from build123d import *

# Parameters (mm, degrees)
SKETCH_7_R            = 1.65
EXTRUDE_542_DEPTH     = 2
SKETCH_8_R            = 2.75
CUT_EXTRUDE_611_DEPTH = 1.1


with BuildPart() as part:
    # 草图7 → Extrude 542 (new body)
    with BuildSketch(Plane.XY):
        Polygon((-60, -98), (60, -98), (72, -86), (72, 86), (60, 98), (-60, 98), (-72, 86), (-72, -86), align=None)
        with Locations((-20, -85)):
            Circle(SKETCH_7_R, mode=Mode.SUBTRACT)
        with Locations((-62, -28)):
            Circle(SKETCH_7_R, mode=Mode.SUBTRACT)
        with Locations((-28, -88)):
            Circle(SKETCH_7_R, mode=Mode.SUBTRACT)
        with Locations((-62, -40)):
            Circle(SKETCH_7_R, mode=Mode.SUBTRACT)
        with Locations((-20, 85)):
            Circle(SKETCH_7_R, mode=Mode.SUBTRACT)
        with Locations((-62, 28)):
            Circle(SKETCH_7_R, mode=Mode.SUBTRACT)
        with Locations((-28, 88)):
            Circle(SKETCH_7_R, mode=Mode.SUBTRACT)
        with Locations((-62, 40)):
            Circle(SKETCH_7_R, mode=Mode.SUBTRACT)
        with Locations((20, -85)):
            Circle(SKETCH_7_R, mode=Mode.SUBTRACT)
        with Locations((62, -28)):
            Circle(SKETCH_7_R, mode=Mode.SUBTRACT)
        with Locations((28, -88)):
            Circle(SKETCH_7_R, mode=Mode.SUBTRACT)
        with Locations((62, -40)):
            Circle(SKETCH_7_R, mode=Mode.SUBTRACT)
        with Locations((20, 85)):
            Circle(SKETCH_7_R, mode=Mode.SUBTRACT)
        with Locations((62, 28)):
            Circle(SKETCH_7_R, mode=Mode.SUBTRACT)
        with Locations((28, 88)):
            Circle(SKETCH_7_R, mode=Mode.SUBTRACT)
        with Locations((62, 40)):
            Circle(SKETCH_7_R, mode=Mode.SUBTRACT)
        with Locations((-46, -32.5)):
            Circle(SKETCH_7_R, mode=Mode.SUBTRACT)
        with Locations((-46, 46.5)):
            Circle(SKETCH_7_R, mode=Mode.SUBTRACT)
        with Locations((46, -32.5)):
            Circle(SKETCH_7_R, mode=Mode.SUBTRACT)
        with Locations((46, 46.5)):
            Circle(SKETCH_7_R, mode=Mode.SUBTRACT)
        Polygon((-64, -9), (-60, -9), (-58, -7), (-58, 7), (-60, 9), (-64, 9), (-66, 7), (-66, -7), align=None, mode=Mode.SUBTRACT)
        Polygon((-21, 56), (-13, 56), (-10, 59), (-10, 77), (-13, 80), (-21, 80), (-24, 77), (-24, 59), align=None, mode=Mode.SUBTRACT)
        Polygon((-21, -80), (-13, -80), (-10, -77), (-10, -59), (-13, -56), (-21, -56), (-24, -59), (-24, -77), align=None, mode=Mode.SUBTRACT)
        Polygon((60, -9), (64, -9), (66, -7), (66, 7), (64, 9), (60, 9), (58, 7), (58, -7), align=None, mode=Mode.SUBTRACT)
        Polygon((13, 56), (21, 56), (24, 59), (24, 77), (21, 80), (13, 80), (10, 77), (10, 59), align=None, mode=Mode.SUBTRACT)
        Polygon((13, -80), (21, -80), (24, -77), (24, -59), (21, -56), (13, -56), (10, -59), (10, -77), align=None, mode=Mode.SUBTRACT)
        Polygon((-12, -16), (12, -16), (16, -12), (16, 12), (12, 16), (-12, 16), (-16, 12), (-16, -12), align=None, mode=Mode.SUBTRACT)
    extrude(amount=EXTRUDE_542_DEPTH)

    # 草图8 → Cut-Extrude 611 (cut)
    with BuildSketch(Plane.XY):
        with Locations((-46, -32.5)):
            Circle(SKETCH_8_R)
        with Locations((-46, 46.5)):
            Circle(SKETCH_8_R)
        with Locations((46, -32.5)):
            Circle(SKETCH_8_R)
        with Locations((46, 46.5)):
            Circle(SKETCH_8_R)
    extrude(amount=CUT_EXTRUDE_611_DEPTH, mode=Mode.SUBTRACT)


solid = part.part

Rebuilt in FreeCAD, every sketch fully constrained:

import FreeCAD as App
import Part
import Sketcher

V = App.Vector


def add_polygon(sketch, points):
    """Adds a closed chain of lines whose ends are joined by coincident constraints."""
    first, n = sketch.GeometryCount, len(points)
    for a, b in zip(points, points[1:] + points[:1]):
        sketch.addGeometry(Part.LineSegment(App.Vector(*a, 0), App.Vector(*b, 0)), False)
    for i in range(n):
        sketch.addConstraint(Sketcher.Constraint("Coincident", first + i, 2, first + (i + 1) % n, 1))

doc = App.newDocument("Part")
params = doc.addObject("Spreadsheet::Sheet", "Params")
for row, (alias, value) in enumerate([
    ("sketch1_diameter", "3.3 mm"),
    ("sketch1_width", "120 mm"),
    ("sketch1_width2", "8 mm"),
    ("sketch1_width3", "4 mm"),
    ("sketch1_width4", "24 mm"),
    ("pad1_length", "2 mm"),
    ("sketch2_diameter", "5.5 mm"),
    ("pocket1_length", "1.1 mm"),
], start=1):
    params.set(f"A{row}", alias)
    params.set(f"B{row}", "=" + value)
    params.setAlias(f"B{row}", alias)

body = doc.addObject("PartDesign::Body", "Body")

# Sketch on XY plane
sketch1 = doc.addObject("Sketcher::SketchObject", "Sketch")
body.addObject(sketch1)
sketch1.AttachmentSupport = (doc.XY_Plane, [""])
sketch1.MapMode = "FlatFace"
add_polygon(sketch1, [(-60, -98), (60, -98), (72, -86), (72, 86), (60, 98), (-60, 98), (-72, 86), (-72, -86)])  # lines 0-7
sketch1.addGeometry(Part.Circle(V(-28, -88, 0), V(0, 0, 1), 1.65), False)  # 8
sketch1.addGeometry(Part.Circle(V(-20, -85, 0), V(0, 0, 1), 1.65), False)  # 9
add_polygon(sketch1, [(-13, -80), (-21, -80), (-24, -77), (-24, -59), (-21, -56), (-13, -56), (-10, -59), (-10, -77)])  # lines 10-17
sketch1.addGeometry(Part.Circle(V(-62, -40, 0), V(0, 0, 1), 1.65), False)  # 18
sketch1.addGeometry(Part.Circle(V(-62, -28, 0), V(0, 0, 1), 1.65), False)  # 19
sketch1.addGeometry(Part.Circle(V(-46, -32.5, 0), V(0, 0, 1), 1.65), False)  # 20
sketch1.addGeometry(Part.Circle(V(20, -85, 0), V(0, 0, 1), 1.65), False)  # 21
sketch1.addGeometry(Part.Circle(V(28, -88, 0), V(0, 0, 1), 1.65), False)  # 22
add_polygon(sketch1, [(21, -80), (13, -80), (10, -77), (10, -59), (13, -56), (21, -56), (24, -59), (24, -77)])  # lines 23-30
sketch1.addGeometry(Part.Circle(V(46, -32.5, 0), V(0, 0, 1), 1.65), False)  # 31
sketch1.addGeometry(Part.Circle(V(62, -40, 0), V(0, 0, 1), 1.65), False)  # 32
sketch1.addGeometry(Part.Circle(V(62, -28, 0), V(0, 0, 1), 1.65), False)  # 33
add_polygon(sketch1, [(-60, -9), (-64, -9), (-66, -7), (-66, 7), (-64, 9), (-60, 9), (-58, 7), (-58, -7)])  # lines 34-41
sketch1.addGeometry(Part.Circle(V(-62, 28, 0), V(0, 0, 1), 1.65), False)  # 42
sketch1.addGeometry(Part.Circle(V(-62, 40, 0), V(0, 0, 1), 1.65), False)  # 43
sketch1.addGeometry(Part.Circle(V(-46, 46.5, 0), V(0, 0, 1), 1.65), False)  # 44
add_polygon(sketch1, [(-13, 56), (-21, 56), (-24, 59), (-24, 77), (-21, 80), (-13, 80), (-10, 77), (-10, 59)])  # lines 45-52
sketch1.addGeometry(Part.Circle(V(-28, 88, 0), V(0, 0, 1), 1.65), False)  # 53
sketch1.addGeometry(Part.Circle(V(-20, 85, 0), V(0, 0, 1), 1.65), False)  # 54
add_polygon(sketch1, [(12, -16), (-12, -16), (-16, -12), (-16, 12), (-12, 16), (12, 16), (16, 12), (16, -12)])  # lines 55-62
add_polygon(sketch1, [(64, -9), (60, -9), (58, -7), (58, 7), (60, 9), (64, 9), (66, 7), (66, -7)])  # lines 63-70
sketch1.addGeometry(Part.Circle(V(62, 28, 0), V(0, 0, 1), 1.65), False)  # 71
sketch1.addGeometry(Part.Circle(V(62, 40, 0), V(0, 0, 1), 1.65), False)  # 72
add_polygon(sketch1, [(21, 56), (13, 56), (10, 59), (10, 77), (13, 80), (21, 80), (24, 77), (24, 59)])  # lines 73-80
sketch1.addGeometry(Part.Circle(V(20, 85, 0), V(0, 0, 1), 1.65), False)  # 81
sketch1.addGeometry(Part.Circle(V(28, 88, 0), V(0, 0, 1), 1.65), False)  # 82
sketch1.addGeometry(Part.Circle(V(46, 46.5, 0), V(0, 0, 1), 1.65), False)  # 83
sketch1.addConstraint(Sketcher.Constraint("Horizontal", 0))
sketch1.addConstraint(Sketcher.Constraint("Vertical", 2))
sketch1.addConstraint(Sketcher.Constraint("Horizontal", 4))
sketch1.addConstraint(Sketcher.Constraint("Vertical", 6))
sketch1.addConstraint(Sketcher.Constraint("Horizontal", 10))
sketch1.addConstraint(Sketcher.Constraint("Vertical", 12))
sketch1.addConstraint(Sketcher.Constraint("Horizontal", 14))
sketch1.addConstraint(Sketcher.Constraint("Vertical", 16))
sketch1.addConstraint(Sketcher.Constraint("Horizontal", 23))
sketch1.addConstraint(Sketcher.Constraint("Vertical", 25))
sketch1.addConstraint(Sketcher.Constraint("Horizontal", 27))
sketch1.addConstraint(Sketcher.Constraint("Vertical", 29))
sketch1.addConstraint(Sketcher.Constraint("Horizontal", 34))
sketch1.addConstraint(Sketcher.Constraint("Vertical", 36))
sketch1.addConstraint(Sketcher.Constraint("Horizontal", 38))
sketch1.addConstraint(Sketcher.Constraint("Vertical", 40))
sketch1.addConstraint(Sketcher.Constraint("Horizontal", 45))
sketch1.addConstraint(Sketcher.Constraint("Vertical", 47))
sketch1.addConstraint(Sketcher.Constraint("Horizontal", 49))
sketch1.addConstraint(Sketcher.Constraint("Vertical", 51))
sketch1.addConstraint(Sketcher.Constraint("Horizontal", 55))
sketch1.addConstraint(Sketcher.Constraint("Vertical", 57))
sketch1.addConstraint(Sketcher.Constraint("Horizontal", 59))
sketch1.addConstraint(Sketcher.Constraint("Vertical", 61))
sketch1.addConstraint(Sketcher.Constraint("Horizontal", 63))
sketch1.addConstraint(Sketcher.Constraint("Vertical", 65))
sketch1.addConstraint(Sketcher.Constraint("Horizontal", 67))
sketch1.addConstraint(Sketcher.Constraint("Vertical", 69))
sketch1.addConstraint(Sketcher.Constraint("Horizontal", 73))
sketch1.addConstraint(Sketcher.Constraint("Vertical", 75))
sketch1.addConstraint(Sketcher.Constraint("Horizontal", 77))
sketch1.addConstraint(Sketcher.Constraint("Vertical", 79))
sketch1.addConstraint(Sketcher.Constraint("Equal", 8, 9))
sketch1.addConstraint(Sketcher.Constraint("Equal", 9, 18))
sketch1.addConstraint(Sketcher.Constraint("Equal", 18, 19))
sketch1.addConstraint(Sketcher.Constraint("Equal", 19, 20))
sketch1.addConstraint(Sketcher.Constraint("Equal", 20, 21))
sketch1.addConstraint(Sketcher.Constraint("Equal", 21, 22))
sketch1.addConstraint(Sketcher.Constraint("Equal", 22, 31))
sketch1.addConstraint(Sketcher.Constraint("Equal", 31, 32))
sketch1.addConstraint(Sketcher.Constraint("Equal", 32, 33))
sketch1.addConstraint(Sketcher.Constraint("Equal", 33, 42))
sketch1.addConstraint(Sketcher.Constraint("Equal", 42, 43))
sketch1.addConstraint(Sketcher.Constraint("Equal", 43, 44))
sketch1.addConstraint(Sketcher.Constraint("Equal", 44, 53))
sketch1.addConstraint(Sketcher.Constraint("Equal", 53, 54))
sketch1.addConstraint(Sketcher.Constraint("Equal", 54, 71))
sketch1.addConstraint(Sketcher.Constraint("Equal", 71, 72))
sketch1.addConstraint(Sketcher.Constraint("Equal", 72, 81))
sketch1.addConstraint(Sketcher.Constraint("Equal", 81, 82))
sketch1.addConstraint(Sketcher.Constraint("Equal", 82, 83))
sketch1.addConstraint(Sketcher.Constraint("Symmetric", 33, 3, 42, 3, -1, 1))
sketch1.addConstraint(Sketcher.Constraint("Symmetric", 32, 3, 43, 3, -1, 1))
sketch1.addConstraint(Sketcher.Constraint("Symmetric", 22, 3, 53, 3, -1, 1))
sketch1.addConstraint(Sketcher.Constraint("Symmetric", 21, 3, 54, 3, -1, 1))
sketch1.addConstraint(Sketcher.Constraint("Symmetric", 19, 3, 71, 3, -1, 1))
sketch1.addConstraint(Sketcher.Constraint("Symmetric", 18, 3, 72, 3, -1, 1))
sketch1.addConstraint(Sketcher.Constraint("Symmetric", 9, 3, 81, 3, -1, 1))
sketch1.addConstraint(Sketcher.Constraint("Symmetric", 8, 3, 82, 3, -1, 1))
sketch1.addConstraint(Sketcher.Constraint("Symmetric", 0, 2, 4, 2, -1, 1))
sketch1.addConstraint(Sketcher.Constraint("Symmetric", 1, 2, 5, 2, -1, 1))
sketch1.addConstraint(Sketcher.Constraint("Symmetric", 27, 2, 45, 2, -1, 1))
sketch1.addConstraint(Sketcher.Constraint("Symmetric", 28, 2, 46, 2, -1, 1))
sketch1.addConstraint(Sketcher.Constraint("Symmetric", 30, 2, 48, 2, -1, 1))
sketch1.addConstraint(Sketcher.Constraint("Symmetric", 24, 2, 50, 2, -1, 1))
sketch1.addConstraint(Sketcher.Constraint("Symmetric", 55, 2, 59, 2, -1, 1))
sketch1.addConstraint(Sketcher.Constraint("Symmetric", 56, 2, 60, 2, -1, 1))
sketch1.addConstraint(Sketcher.Constraint("Symmetric", 38, 2, 63, 2, -1, 1))
sketch1.addConstraint(Sketcher.Constraint("Symmetric", 39, 2, 64, 2, -1, 1))
sketch1.addConstraint(Sketcher.Constraint("Symmetric", 41, 2, 66, 2, -1, 1))
sketch1.addConstraint(Sketcher.Constraint("Symmetric", 35, 2, 68, 2, -1, 1))
sketch1.addConstraint(Sketcher.Constraint("Symmetric", 14, 2, 73, 2, -1, 1))
sketch1.addConstraint(Sketcher.Constraint("Symmetric", 15, 2, 74, 2, -1, 1))
sketch1.addConstraint(Sketcher.Constraint("Symmetric", 17, 2, 76, 2, -1, 1))
sketch1.addConstraint(Sketcher.Constraint("Symmetric", 11, 2, 78, 2, -1, 1))
sketch1.addConstraint(Sketcher.Constraint("Symmetric", 9, 3, 21, 3, -2))
sketch1.addConstraint(Sketcher.Constraint("Symmetric", 8, 3, 22, 3, -2))
sketch1.addConstraint(Sketcher.Constraint("Symmetric", 20, 3, 31, 3, -2))
sketch1.addConstraint(Sketcher.Constraint("Symmetric", 18, 3, 32, 3, -2))
sketch1.addConstraint(Sketcher.Constraint("Symmetric", 19, 3, 33, 3, -2))
sketch1.addConstraint(Sketcher.Constraint("Symmetric", 44, 3, 83, 3, -2))
sketch1.addConstraint(Sketcher.Constraint("Symmetric", 17, 2, 23, 2, -2))
sketch1.addConstraint(Sketcher.Constraint("Symmetric", 16, 2, 24, 2, -2))
sketch1.addConstraint(Sketcher.Constraint("Symmetric", 14, 2, 26, 2, -2))
sketch1.addConstraint(Sketcher.Constraint("Symmetric", 12, 2, 28, 2, -2))
sketch1.addConstraint(Sketcher.Constraint("Symmetric", 41, 2, 63, 2, -2))
sketch1.addConstraint(Sketcher.Constraint("Perpendicular", 1, 3))
sketch1.addConstraint(Sketcher.Constraint("Perpendicular", 5, 7))
sketch1.addConstraint(Sketcher.Constraint("Parallel", 7, 11))
sketch1.addConstraint(Sketcher.Constraint("Perpendicular", 11, 13))
sketch1.addConstraint(Sketcher.Constraint("Perpendicular", 13, 15))
sketch1.addConstraint(Sketcher.Constraint("Perpendicular", 15, 17))
sketch1.addConstraint(Sketcher.Constraint("Perpendicular", 17, 24))
sketch1.addConstraint(Sketcher.Constraint("Perpendicular", 24, 26))
sketch1.addConstraint(Sketcher.Constraint("Perpendicular", 26, 28))
sketch1.addConstraint(Sketcher.Constraint("Perpendicular", 28, 30))
sketch1.addConstraint(Sketcher.Constraint("Perpendicular", 30, 35))
sketch1.addConstraint(Sketcher.Constraint("Perpendicular", 35, 37))
sketch1.addConstraint(Sketcher.Constraint("Perpendicular", 37, 39))
sketch1.addConstraint(Sketcher.Constraint("Perpendicular", 39, 41))
sketch1.addConstraint(Sketcher.Constraint("Perpendicular", 46, 48))
sketch1.addConstraint(Sketcher.Constraint("Perpendicular", 48, 50))
sketch1.addConstraint(Sketcher.Constraint("Perpendicular", 50, 52))
sketch1.addConstraint(Sketcher.Constraint("Perpendicular", 52, 56))
sketch1.addConstraint(Sketcher.Constraint("Perpendicular", 56, 58))
sketch1.addConstraint(Sketcher.Constraint("Perpendicular", 60, 62))
sketch1.addConstraint(Sketcher.Constraint("Perpendicular", 64, 66))
sketch1.addConstraint(Sketcher.Constraint("Perpendicular", 66, 68))
sketch1.addConstraint(Sketcher.Constraint("Perpendicular", 68, 70))
sketch1.addConstraint(Sketcher.Constraint("Perpendicular", 74, 76))
sketch1.addConstraint(Sketcher.Constraint("Perpendicular", 76, 78))
sketch1.addConstraint(Sketcher.Constraint("Perpendicular", 78, 80))
sketch1.addConstraint(Sketcher.Constraint("Horizontal", 2, 2, 5, 2))
sketch1.addConstraint(Sketcher.Constraint("Horizontal", 1, 2, 6, 2))
sketch1.addConstraint(Sketcher.Constraint("Horizontal", 12, 2, 15, 2))
sketch1.addConstraint(Sketcher.Constraint("Horizontal", 11, 2, 16, 2))
sketch1.addConstraint(Sketcher.Constraint("Horizontal", 24, 2, 29, 2))
sketch1.addConstraint(Sketcher.Constraint("Horizontal", 36, 2, 39, 2))
sketch1.addConstraint(Sketcher.Constraint("Horizontal", 35, 2, 40, 2))
sketch1.addConstraint(Sketcher.Constraint("Horizontal", 46, 2, 51, 2))
sketch1.addConstraint(Sketcher.Constraint("Horizontal", 57, 2, 60, 2))
sketch1.addConstraint(Sketcher.Constraint("Horizontal", 56, 2, 61, 2))
sketch1.addConstraint(Sketcher.Constraint("Horizontal", 64, 2, 69, 2))
sketch1.addConstraint(Sketcher.Constraint("Horizontal", 74, 2, 79, 2))
sketch1.addConstraint(Sketcher.Constraint("Vertical", 18, 3, 19, 3))
sketch1.addConstraint(Sketcher.Constraint("Vertical", 20, 3, 44, 3))
sketch1.addConstraint(Sketcher.Constraint("Vertical", 10, 2, 13, 2))
sketch1.addConstraint(Sketcher.Constraint("Vertical", 7, 2, 38, 2))
sketch1.addConstraint(Sketcher.Constraint("Equal", 59, 57))
sketch1.addConstraint(Sketcher.Constraint("Diameter", 8, 3.3))
sketch1.addConstraint(Sketcher.Constraint("DistanceX", 0, 1, 0, 2, 120.0))
sketch1.addConstraint(Sketcher.Constraint("DistanceX", 10, 2, 10, 1, 8.0))
sketch1.addConstraint(Sketcher.Constraint("DistanceX", 34, 2, 34, 1, 4.0))
sketch1.addConstraint(Sketcher.Constraint("DistanceX", 55, 2, 55, 1, 24.0))
sketch1.addConstraint(Sketcher.Constraint("DistanceY", 2, 1, 2, 2, 172.0))
sketch1.addConstraint(Sketcher.Constraint("DistanceY", 12, 1, 12, 2, 18.0))
sketch1.addConstraint(Sketcher.Constraint("DistanceY", 36, 1, 36, 2, 14.0))
sketch1.addConstraint(Sketcher.Constraint("DistanceX", 8, 3, -1, 1, 28.0))
sketch1.addConstraint(Sketcher.Constraint("DistanceY", 8, 3, -1, 1, 88.0))
sketch1.addConstraint(Sketcher.Constraint("DistanceX", 9, 3, -1, 1, 20.0))
sketch1.addConstraint(Sketcher.Constraint("DistanceY", 9, 3, -1, 1, 85.0))
sketch1.addConstraint(Sketcher.Constraint("DistanceX", 18, 3, -1, 1, 62.0))
sketch1.addConstraint(Sketcher.Constraint("DistanceY", 18, 3, -1, 1, 40.0))
sketch1.addConstraint(Sketcher.Constraint("DistanceY", 19, 3, -1, 1, 28.0))
sketch1.addConstraint(Sketcher.Constraint("DistanceX", 20, 3, -1, 1, 46.0))
sketch1.addConstraint(Sketcher.Constraint("DistanceY", 0, 2, -1, 1, 98.0))
sketch1.addConstraint(Sketcher.Constraint("DistanceX", 10, 2, -1, 1, 21.0))
sketch1.addConstraint(Sketcher.Constraint("DistanceY", 10, 2, -1, 1, 80.0))
sketch1.addConstraint(Sketcher.Constraint("DistanceX", 11, 2, -1, 1, 24.0))
sketch1.addConstraint(Sketcher.Constraint("DistanceY", 34, 2, -1, 1, 9.0))
sketch1.addConstraint(Sketcher.Constraint("DistanceY", 55, 2, -1, 1, 16.0))
sketch1.addConstraint(Sketcher.Constraint("DistanceY", 20, 3, -1, 1, 32.5))
sketch1.addConstraint(Sketcher.Constraint("DistanceY", -1, 1, 44, 3, 46.5))
sketch1.setExpression("Constraints[193]", "Params.sketch1_diameter")
sketch1.setExpression("Constraints[194]", "Params.sketch1_width")
sketch1.setExpression("Constraints[195]", "Params.sketch1_width2")
sketch1.setExpression("Constraints[196]", "Params.sketch1_width3")
sketch1.setExpression("Constraints[197]", "Params.sketch1_width4")
pad1 = doc.addObject("PartDesign::Pad", "Pad")
body.addObject(pad1)
pad1.Profile = sketch1
pad1.setExpression("Length", "Params.pad1_length")

# Sketch on XY plane
sketch2 = doc.addObject("Sketcher::SketchObject", "Sketch001")
body.addObject(sketch2)
sketch2.AttachmentSupport = (doc.XY_Plane, [""])
sketch2.MapMode = "FlatFace"
sketch2.addGeometry(Part.Circle(V(-46, -32.5, 0), V(0, 0, 1), 2.75), False)
sketch2.addGeometry(Part.Circle(V(-46, 46.5, 0), V(0, 0, 1), 2.75), False)
sketch2.addGeometry(Part.Circle(V(46, -32.5, 0), V(0, 0, 1), 2.75), False)
sketch2.addGeometry(Part.Circle(V(46, 46.5, 0), V(0, 0, 1), 2.75), False)
sketch2.addConstraint(Sketcher.Constraint("Equal", 0, 1))
sketch2.addConstraint(Sketcher.Constraint("Equal", 1, 2))
sketch2.addConstraint(Sketcher.Constraint("Equal", 2, 3))
sketch2.addConstraint(Sketcher.Constraint("Symmetric", 0, 3, 2, 3, -2))
sketch2.addConstraint(Sketcher.Constraint("Symmetric", 1, 3, 3, 3, -2))
sketch2.addConstraint(Sketcher.Constraint("Vertical", 0, 3, 1, 3))
sketch2.addConstraint(Sketcher.Constraint("Diameter", 0, 5.5))
sketch2.addConstraint(Sketcher.Constraint("DistanceX", 0, 3, -1, 1, 46.0))
sketch2.addConstraint(Sketcher.Constraint("DistanceY", 0, 3, 1, 3, 79.0))
sketch2.addConstraint(Sketcher.Constraint("DistanceY", 0, 3, -1, 1, 32.5))
sketch2.setExpression("Constraints[6]", "Params.sketch2_diameter")
pocket1 = doc.addObject("PartDesign::Pocket", "Pocket")
body.addObject(pocket1)
pocket1.Profile = sketch2
pocket1.setExpression("Length", "Params.pocket1_length")
pocket1.Reversed = True

doc.recompute()
